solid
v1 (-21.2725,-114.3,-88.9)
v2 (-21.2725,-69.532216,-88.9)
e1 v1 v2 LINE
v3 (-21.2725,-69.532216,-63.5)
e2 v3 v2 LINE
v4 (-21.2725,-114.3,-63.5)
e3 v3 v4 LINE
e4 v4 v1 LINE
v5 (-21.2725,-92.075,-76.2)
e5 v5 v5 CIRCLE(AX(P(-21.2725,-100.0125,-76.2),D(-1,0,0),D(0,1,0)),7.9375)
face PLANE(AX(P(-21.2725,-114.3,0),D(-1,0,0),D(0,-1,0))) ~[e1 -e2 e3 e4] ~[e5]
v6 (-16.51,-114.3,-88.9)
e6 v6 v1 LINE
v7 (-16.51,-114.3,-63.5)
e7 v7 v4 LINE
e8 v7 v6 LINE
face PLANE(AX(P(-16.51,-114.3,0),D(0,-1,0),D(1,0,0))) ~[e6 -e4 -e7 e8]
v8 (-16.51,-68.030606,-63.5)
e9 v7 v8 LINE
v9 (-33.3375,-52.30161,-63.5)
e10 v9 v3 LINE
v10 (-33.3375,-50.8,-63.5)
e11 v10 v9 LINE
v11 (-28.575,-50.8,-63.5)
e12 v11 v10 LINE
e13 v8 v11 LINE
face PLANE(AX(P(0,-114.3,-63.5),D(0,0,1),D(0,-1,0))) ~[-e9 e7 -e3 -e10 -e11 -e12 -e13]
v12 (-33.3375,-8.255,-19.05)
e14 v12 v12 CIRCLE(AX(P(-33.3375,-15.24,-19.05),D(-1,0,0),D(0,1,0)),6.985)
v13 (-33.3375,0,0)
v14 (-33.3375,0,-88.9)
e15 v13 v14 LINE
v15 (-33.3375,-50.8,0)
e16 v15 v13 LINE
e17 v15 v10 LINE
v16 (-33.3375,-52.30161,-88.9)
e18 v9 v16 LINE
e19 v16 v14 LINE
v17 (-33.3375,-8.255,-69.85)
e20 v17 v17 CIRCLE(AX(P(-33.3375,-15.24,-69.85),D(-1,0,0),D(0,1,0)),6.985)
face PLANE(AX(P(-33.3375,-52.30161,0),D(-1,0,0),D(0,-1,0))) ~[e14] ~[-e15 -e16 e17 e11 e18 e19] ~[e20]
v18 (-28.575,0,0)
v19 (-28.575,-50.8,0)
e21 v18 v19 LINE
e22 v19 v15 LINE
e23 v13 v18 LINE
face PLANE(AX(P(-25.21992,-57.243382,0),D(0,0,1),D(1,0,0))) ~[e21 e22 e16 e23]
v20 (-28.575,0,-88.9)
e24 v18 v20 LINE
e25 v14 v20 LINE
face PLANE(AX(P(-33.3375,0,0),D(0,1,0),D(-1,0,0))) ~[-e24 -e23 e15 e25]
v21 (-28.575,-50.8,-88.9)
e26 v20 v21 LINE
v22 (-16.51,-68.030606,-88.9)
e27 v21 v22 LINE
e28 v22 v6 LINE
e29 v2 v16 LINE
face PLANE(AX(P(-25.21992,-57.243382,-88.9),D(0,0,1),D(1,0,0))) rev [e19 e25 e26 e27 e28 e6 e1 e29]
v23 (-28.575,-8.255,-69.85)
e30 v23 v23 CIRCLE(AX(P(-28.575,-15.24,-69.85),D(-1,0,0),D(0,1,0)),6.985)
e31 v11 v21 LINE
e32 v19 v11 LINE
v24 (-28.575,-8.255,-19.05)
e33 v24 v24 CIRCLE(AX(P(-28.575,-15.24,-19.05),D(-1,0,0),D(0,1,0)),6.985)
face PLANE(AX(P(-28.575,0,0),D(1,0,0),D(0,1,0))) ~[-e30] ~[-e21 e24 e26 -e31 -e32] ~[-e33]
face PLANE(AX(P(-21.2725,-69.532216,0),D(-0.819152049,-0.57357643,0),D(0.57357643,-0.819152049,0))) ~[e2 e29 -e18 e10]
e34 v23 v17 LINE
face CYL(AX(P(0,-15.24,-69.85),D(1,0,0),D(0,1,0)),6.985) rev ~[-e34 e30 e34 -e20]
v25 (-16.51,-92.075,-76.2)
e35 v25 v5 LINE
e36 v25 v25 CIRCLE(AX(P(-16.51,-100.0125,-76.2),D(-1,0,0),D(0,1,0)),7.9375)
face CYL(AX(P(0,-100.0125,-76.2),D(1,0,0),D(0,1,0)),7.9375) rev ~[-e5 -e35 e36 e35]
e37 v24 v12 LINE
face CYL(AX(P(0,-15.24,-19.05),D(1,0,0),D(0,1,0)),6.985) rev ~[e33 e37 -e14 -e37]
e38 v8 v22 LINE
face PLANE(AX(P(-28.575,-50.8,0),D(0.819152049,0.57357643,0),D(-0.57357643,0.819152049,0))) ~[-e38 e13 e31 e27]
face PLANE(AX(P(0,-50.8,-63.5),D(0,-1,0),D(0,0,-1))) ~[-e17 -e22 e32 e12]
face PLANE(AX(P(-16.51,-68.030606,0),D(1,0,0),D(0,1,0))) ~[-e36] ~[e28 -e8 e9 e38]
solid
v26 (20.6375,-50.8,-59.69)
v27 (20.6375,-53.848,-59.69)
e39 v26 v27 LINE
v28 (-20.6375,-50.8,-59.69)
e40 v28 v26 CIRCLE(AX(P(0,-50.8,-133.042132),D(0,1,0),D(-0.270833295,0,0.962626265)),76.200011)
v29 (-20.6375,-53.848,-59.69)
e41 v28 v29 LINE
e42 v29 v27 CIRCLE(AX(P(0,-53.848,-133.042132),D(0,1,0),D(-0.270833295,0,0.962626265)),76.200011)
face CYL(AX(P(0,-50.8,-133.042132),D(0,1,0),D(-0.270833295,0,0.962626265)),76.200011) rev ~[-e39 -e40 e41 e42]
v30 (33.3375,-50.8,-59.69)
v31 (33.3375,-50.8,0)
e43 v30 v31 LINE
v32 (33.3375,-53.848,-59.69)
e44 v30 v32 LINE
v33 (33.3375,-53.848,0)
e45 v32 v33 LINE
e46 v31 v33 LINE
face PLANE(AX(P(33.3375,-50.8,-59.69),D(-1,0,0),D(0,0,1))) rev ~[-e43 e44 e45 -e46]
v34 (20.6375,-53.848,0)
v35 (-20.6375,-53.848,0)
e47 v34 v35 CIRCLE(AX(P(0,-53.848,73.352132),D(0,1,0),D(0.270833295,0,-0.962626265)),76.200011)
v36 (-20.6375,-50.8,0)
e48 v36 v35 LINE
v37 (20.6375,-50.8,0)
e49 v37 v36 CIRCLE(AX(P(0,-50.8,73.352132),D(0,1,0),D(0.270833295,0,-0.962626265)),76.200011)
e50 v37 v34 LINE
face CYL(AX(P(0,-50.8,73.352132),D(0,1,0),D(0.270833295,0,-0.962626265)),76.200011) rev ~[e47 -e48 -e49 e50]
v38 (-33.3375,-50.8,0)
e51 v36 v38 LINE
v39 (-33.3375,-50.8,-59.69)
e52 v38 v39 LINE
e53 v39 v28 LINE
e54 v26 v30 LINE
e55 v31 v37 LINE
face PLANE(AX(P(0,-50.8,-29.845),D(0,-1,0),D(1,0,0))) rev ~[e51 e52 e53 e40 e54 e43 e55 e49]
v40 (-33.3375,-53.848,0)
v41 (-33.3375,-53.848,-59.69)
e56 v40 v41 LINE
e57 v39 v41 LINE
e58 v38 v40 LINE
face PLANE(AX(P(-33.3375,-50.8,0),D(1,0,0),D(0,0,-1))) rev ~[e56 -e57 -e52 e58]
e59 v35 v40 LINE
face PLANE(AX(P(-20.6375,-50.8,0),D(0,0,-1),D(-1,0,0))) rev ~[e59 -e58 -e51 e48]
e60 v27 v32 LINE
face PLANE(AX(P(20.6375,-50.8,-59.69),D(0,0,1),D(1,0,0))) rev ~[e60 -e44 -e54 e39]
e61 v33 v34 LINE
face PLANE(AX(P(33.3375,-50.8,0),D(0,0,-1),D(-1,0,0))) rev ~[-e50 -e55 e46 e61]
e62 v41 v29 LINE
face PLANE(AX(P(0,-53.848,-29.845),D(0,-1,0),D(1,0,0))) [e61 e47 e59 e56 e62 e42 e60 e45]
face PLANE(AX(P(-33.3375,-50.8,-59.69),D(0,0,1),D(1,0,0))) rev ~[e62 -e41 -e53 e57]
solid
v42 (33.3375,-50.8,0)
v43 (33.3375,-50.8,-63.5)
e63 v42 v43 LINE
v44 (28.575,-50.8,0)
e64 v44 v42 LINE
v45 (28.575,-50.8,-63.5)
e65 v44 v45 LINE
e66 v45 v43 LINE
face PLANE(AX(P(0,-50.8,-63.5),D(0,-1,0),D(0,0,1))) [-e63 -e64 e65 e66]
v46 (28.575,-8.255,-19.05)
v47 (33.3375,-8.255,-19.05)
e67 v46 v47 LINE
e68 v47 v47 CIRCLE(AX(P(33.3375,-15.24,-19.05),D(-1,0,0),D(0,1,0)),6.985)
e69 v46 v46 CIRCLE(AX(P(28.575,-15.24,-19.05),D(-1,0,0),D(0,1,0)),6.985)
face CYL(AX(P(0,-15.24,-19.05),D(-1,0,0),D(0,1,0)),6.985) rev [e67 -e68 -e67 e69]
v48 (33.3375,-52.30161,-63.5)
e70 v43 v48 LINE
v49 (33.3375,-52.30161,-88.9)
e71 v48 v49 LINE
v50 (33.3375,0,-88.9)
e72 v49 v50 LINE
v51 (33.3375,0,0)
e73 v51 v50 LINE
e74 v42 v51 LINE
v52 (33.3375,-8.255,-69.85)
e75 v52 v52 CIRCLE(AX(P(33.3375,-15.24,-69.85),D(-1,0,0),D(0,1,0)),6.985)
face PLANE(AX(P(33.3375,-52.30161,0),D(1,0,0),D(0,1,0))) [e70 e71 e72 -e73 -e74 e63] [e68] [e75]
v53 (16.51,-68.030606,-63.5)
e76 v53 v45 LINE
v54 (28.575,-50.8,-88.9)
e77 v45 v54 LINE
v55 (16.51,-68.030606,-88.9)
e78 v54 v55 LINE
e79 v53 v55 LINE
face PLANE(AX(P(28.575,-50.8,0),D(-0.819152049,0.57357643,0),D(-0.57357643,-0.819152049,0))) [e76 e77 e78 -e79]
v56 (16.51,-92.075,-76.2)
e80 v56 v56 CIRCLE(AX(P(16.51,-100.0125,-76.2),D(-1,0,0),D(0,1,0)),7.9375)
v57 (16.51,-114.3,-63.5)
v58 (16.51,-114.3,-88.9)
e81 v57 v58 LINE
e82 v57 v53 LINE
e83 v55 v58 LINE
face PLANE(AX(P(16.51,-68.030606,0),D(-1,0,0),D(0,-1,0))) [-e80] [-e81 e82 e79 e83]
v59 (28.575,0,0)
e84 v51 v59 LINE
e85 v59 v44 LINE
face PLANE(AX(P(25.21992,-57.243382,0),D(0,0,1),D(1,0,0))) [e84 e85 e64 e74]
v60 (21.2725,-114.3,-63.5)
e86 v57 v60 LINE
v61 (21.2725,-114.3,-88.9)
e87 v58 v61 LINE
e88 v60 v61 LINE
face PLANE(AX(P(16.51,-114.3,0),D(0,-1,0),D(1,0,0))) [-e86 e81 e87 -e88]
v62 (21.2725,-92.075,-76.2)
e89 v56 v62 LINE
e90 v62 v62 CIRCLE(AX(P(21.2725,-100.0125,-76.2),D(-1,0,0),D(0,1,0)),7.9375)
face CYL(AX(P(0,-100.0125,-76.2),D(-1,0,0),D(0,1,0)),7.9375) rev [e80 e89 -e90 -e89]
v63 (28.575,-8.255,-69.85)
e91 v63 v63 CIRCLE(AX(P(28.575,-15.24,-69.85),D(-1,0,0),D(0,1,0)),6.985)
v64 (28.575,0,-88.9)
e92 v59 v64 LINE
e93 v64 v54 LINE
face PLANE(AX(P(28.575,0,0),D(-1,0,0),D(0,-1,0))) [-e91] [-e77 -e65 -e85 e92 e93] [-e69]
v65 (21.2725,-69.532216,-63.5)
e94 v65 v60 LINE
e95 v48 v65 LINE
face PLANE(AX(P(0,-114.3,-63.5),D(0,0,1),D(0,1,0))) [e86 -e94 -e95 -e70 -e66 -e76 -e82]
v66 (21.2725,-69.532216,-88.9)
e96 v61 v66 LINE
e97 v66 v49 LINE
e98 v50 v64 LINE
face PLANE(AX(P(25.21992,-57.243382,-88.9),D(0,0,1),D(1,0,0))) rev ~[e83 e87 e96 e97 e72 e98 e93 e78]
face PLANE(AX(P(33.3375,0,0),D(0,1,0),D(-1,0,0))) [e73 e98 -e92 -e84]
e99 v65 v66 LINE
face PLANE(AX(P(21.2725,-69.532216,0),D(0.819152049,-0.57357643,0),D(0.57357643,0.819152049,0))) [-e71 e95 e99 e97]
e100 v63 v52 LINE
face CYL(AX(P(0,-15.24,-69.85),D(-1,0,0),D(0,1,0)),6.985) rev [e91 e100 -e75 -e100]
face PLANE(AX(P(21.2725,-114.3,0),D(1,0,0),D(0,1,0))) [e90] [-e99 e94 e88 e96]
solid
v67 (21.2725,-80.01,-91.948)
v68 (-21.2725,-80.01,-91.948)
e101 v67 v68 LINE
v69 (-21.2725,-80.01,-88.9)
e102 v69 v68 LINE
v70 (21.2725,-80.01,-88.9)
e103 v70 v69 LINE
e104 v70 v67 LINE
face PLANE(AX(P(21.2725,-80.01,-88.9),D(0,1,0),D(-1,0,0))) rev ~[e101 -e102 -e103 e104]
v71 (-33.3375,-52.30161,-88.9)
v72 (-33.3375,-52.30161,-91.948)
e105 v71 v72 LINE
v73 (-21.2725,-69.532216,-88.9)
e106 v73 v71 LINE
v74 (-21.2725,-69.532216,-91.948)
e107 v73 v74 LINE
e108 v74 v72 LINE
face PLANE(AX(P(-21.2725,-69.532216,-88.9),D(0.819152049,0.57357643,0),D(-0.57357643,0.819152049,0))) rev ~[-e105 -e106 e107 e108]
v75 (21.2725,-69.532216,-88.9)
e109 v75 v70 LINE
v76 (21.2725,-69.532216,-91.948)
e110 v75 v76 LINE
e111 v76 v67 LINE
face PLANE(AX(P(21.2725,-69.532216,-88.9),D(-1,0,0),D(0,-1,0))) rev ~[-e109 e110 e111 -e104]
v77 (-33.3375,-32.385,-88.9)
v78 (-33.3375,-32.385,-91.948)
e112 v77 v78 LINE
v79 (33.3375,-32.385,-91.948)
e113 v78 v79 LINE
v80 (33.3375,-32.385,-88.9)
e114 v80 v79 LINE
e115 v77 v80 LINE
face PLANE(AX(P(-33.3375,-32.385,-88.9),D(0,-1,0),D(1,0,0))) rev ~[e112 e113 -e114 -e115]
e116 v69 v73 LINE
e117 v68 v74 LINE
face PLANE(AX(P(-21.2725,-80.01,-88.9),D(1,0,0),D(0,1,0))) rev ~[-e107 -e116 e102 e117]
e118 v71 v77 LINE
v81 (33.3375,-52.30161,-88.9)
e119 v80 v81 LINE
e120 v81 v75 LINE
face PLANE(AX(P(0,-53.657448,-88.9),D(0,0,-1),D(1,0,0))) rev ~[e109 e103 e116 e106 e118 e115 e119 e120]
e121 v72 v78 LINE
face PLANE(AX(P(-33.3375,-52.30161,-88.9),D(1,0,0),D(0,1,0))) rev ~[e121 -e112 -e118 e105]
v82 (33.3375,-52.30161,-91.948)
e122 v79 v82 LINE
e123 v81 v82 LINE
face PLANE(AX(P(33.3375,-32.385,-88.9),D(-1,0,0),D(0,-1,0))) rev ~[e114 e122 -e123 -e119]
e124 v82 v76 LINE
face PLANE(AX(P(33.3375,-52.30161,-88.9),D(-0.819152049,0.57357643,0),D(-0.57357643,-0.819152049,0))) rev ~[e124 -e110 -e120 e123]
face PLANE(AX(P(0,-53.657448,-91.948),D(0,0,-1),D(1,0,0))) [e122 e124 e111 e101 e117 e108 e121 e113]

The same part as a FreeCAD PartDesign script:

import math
import FreeCAD as App
import Part
import Sketcher

V = App.Vector
Q = App.Units.Quantity


def add_polygon(sketch, points):
    """Adds a closed chain of lines whose ends are joined by coincident constraints."""
    first, n = sketch.GeometryCount, len(points)
    for a, b in zip(points, points[1:] + points[:1]):
        sketch.addGeometry(Part.LineSegment(App.Vector(*a, 0), App.Vector(*b, 0)), False)
    for i in range(n):
        sketch.addConstraint(Sketcher.Constraint("Coincident", first + i, 2, first + (i + 1) % n, 1))

doc = App.newDocument("Part")
params = doc.addObject("Spreadsheet::Sheet", "Params")
for row, (alias, value) in enumerate([
    ("sketch1_height", "2 in"),
    ("sketch1_width", "0.1875 in"),
    ("pad1_length", "3.5 in"),
    ("sketch2_diameter", "0.55 in"),
    ("sketch2_diameter2", "0.625 in"),
    ("sketch2_width", "2.5 in"),
    ("sketch3_width", "0.5 in"),
    ("sketch3_height", "2.35 in"),
    ("pad2_length", "0.12 in"),
    ("sketch4_width", "2.625 in"),
    ("sketch4_width2", "1.675 in"),
    ("pad3_length", "0.12 in"),
], start=1):
    params.set(f"A{row}", alias)
    params.set(f"B{row}", "=" + value)
    params.setAlias(f"B{row}", alias)

body = doc.addObject("PartDesign::Body", "Body")

sketch1 = doc.addObject("Sketcher::SketchObject", "Sketch")
body.addObject(sketch1)
sketch1.AttachmentSupport = (doc.XY_Plane, [""])
sketch1.MapMode = "FlatFace"
add_polygon(sketch1, [(33.3, 0), (28.6, 0), (28.6, -50.8), (16.5, -68), (16.5, -114.3), (21.3, -114.3), (21.3, -69.5), (33.3, -52.3)])
sketch1.addConstraint(Sketcher.Constraint("Horizontal", 0))
sketch1.addConstraint(Sketcher.Constraint("Vertical", 1))
sketch1.addConstraint(Sketcher.Constraint("Vertical", 3))
sketch1.addConstraint(Sketcher.Constraint("Horizontal", 4))
sketch1.addConstraint(Sketcher.Constraint("Vertical", 5))
sketch1.addConstraint(Sketcher.Constraint("Vertical", 7))
sketch1.addConstraint(Sketcher.Constraint("PointOnObject", 0, 2, -1))
sketch1.addConstraint(Sketcher.Constraint("Parallel", 2, 6))
sketch1.addConstraint(Sketcher.Constraint("Equal", 0, 4))
sketch1.addConstraint(Sketcher.Constraint("DistanceY", 1, 2, 1, 1, Q("2 in")))
sketch1.addConstraint(Sketcher.Constraint("Angle", 2, Q("-125 deg")))
sketch1.addConstraint(Sketcher.Constraint("DistanceY", 3, 2, -1, 1, Q("4.5 in")))
sketch1.addConstraint(Sketcher.Constraint("DistanceX", 0, 2, 0, 1, Q("0.1875 in")))
sketch1.addConstraint(Sketcher.Constraint("DistanceX", -1, 1, 2, 2, Q("0.65 in")))
sketch1.addConstraint(Sketcher.Constraint("DistanceX", -1, 1, 0, 2, Q("1.125 in")))
sketch1.addConstraint(Sketcher.Constraint("DistanceY", 7, 1, 7, 2, 52.30161))
sketch1.setExpression("Constraints[17]", "Params.sketch1_height")
sketch1.setExpression("Constraints[20]", "Params.sketch1_width")
pad1 = doc.addObject("PartDesign::Pad", "Pad")
body.addObject(pad1)
pad1.Profile = sketch1
pad1.setExpression("Length", "Params.pad1_length")
pad1.Reversed = True

sketch2 = doc.addObject("Sketcher::SketchObject", "Sketch001")
body.addObject(sketch2)
sketch2.AttachmentSupport = (doc.YZ_Plane, [""])
sketch2.MapMode = "FlatFace"
add_polygon(sketch2, [(-114, 0), (-114, -64), (-51, -64), (-51, 0)])
sketch2.addGeometry(Part.Circle(V(-15, -19, 0), V(0, 0, 1), 7), False)
sketch2.addGeometry(Part.Circle(V(-15, -70, 0), V(0, 0, 1), 7), False)
sketch2.addGeometry(Part.Circle(V(-100, -76, 0), V(0, 0, 1), 8), False)
sketch2.addConstraint(Sketcher.Constraint("Vertical", 0))
sketch2.addConstraint(Sketcher.Constraint("Horizontal", 1))
sketch2.addConstraint(Sketcher.Constraint("Vertical", 2))
sketch2.addConstraint(Sketcher.Constraint("Horizontal", 3))
sketch2.addConstraint(Sketcher.Constraint("Equal", 4, 5))
sketch2.addConstraint(Sketcher.Constraint("PointOnObject", 2, 2, -1))
sketch2.addConstraint(Sketcher.Constraint("Vertical", 4, 3, 5, 3))
sketch2.addConstraint(Sketcher.Constraint("Equal", 3, 0))
sketch2.addConstraint(Sketcher.Constraint("Diameter", 4, Q("0.55 in")))
sketch2.addConstraint(Sketcher.Constraint("Diameter", 6, Q("0.625 in")))
sketch2.addConstraint(Sketcher.Constraint("DistanceX", 1, 1, 1, 2, Q("2.5 in")))
sketch2.addConstraint(Sketcher.Constraint("DistanceY", 6, 3, -1, 1, Q("3 in")))
sketch2.addConstraint(Sketcher.Constraint("DistanceX", 1, 2, -1, 1, Q("2 in")))
sketch2.addConstraint(Sketcher.Constraint("DistanceY", 5, 3, 4, 3, Q("2 in")))
sketch2.addConstraint(Sketcher.Constraint("DistanceX", 4, 3, -1, 1, Q("0.6 in")))
sketch2.addConstraint(Sketcher.Constraint("DistanceY", 4, 3, -1, 1, Q("0.75 in")))
sketch2.addConstraint(Sketcher.Constraint("DistanceX", 6, 3, -1, 1, Q("3.9375 in")))
sketch2.setExpression("Constraints[12]", "Params.sketch2_diameter")
sketch2.setExpression("Constraints[13]", "Params.sketch2_diameter2")
sketch2.setExpression("Constraints[14]", "Params.sketch2_width")
pocket1 = doc.addObject("PartDesign::Pocket", "Pocket")
body.addObject(pocket1)
pocket1.Profile = sketch2
pocket1.Type = "ThroughAll"
pocket1.Reversed = True
body2 = doc.addObject("PartDesign::Body", "Body001")
doc.recompute()

mirroring = doc.addObject("Part::Mirroring", "Mirroring")
mirroring.Source = body
mirroring.Base = V(0, 0, 0)
mirroring.Normal = V(1, 0, 0)
body2.BaseFeature = mirroring
doc.recompute()
body3 = doc.addObject("PartDesign::Body", "Body002")

sketch3 = doc.addObject("Sketcher::SketchObject", "Sketch002")
body3.addObject(sketch3)
sketch3.AttachmentSupport = (doc.getObject("XZ_Plane002"), [""])
sketch3.MapMode = "FlatFace"
sketch3.AttachmentOffset = App.Placement(V(0, 0, 2 * 25.4), App.Rotation())
sketch3.addGeometry(Part.LineSegment(V(-21, 0, 0), V(-33, 0, 0)), False)
sketch3.addGeometry(Part.LineSegment(V(-33, 0, 0), V(-33, -60, 0)), False)
sketch3.addGeometry(Part.LineSegment(V(-33, -60, 0), V(-21, -60, 0)), False)
sketch3.addGeometry(Part.ArcOfCircle(Part.Circle(V(0, -133, 0), V(0, 0, 1), 76), math.radians(74), math.radians(106)), False)
sketch3.addGeometry(Part.LineSegment(V(21, -60, 0), V(33, -60, 0)), False)
sketch3.addGeometry(Part.LineSegment(V(33, -60, 0), V(33, 0, 0)), False)
sketch3.addGeometry(Part.LineSegment(V(33, 0, 0), V(21, 0, 0)), False)
sketch3.addGeometry(Part.ArcOfCircle(Part.Circle(V(0, 73, 0), V(0, 0, 1), 76), math.radians(-106), math.radians(-74)), False)
sketch3.addConstraint(Sketcher.Constraint("Coincident", 0, 2, 1, 1))
sketch3.addConstraint(Sketcher.Constraint("Coincident", 1, 2, 2, 1))
sketch3.addConstraint(Sketcher.Constraint("Coincident", 2, 2, 3, 2))
sketch3.addConstraint(Sketcher.Constraint("Coincident", 3, 1, 4, 1))
sketch3.addConstraint(Sketcher.Constraint("Coincident", 4, 2, 5, 1))
sketch3.addConstraint(Sketcher.Constraint("Coincident", 5, 2, 6, 1))
sketch3.addConstraint(Sketcher.Constraint("Coincident", 6, 2, 7, 2))
sketch3.addConstraint(Sketcher.Constraint("Coincident", 7, 1, 0, 1))
sketch3.addConstraint(Sketcher.Constraint("Horizontal", 0))
sketch3.addConstraint(Sketcher.Constraint("Vertical", 1))
sketch3.addConstraint(Sketcher.Constraint("Horizontal", 2))
sketch3.addConstraint(Sketcher.Constraint("Horizontal", 4))
sketch3.addConstraint(Sketcher.Constraint("Vertical", 5))
sketch3.addConstraint(Sketcher.Constraint("Horizontal", 6))
sketch3.addConstraint(Sketcher.Constraint("Equal", 3, 7))
sketch3.addConstraint(Sketcher.Constraint("Symmetric", 0, 2, 5, 2, -1, 1))
sketch3.addConstraint(Sketcher.Constraint("Symmetric", 2, 2, 3, 1, -2))
sketch3.addConstraint(Sketcher.Constraint("Symmetric", 6, 2, 7, 1, -2))
sketch3.addConstraint(Sketcher.Constraint("Vertical", 3, 1, 6, 2))
sketch3.addConstraint(Sketcher.Constraint("DistanceX", 0, 2, 0, 1, Q("0.5 in")))
sketch3.addConstraint(Sketcher.Constraint("DistanceY", 1, 2, 1, 1, Q("2.35 in")))
sketch3.addConstraint(Sketcher.Constraint("DistanceX", 0, 2, -1, 1, Q("1.3125 in")))
sketch3.addConstraint(Sketcher.Constraint("Radius", 3, 76.200011))
sketch3.setExpression("Constraints[19]", "Params.sketch3_width")
sketch3.setExpression("Constraints[20]", "Params.sketch3_height")
pad2 = doc.addObject("PartDesign::Pad", "Pad001")
body3.addObject(pad2)
pad2.Profile = sketch3
pad2.setExpression("Length", "Params.pad2_length")
body4 = doc.addObject("PartDesign::Body", "Body003")

sketch4 = doc.addObject("Sketcher::SketchObject", "Sketch003")
body4.addObject(sketch4)
sketch4.AttachmentSupport = (doc.getObject("XY_Plane003"), [""])
sketch4.MapMode = "FlatFace"
sketch4.AttachmentOffset = App.Placement(V(0, 0, -3.5 * 25.4), App.Rotation())
add_polygon(sketch4, [(-33, -52), (-33, -32), (33, -32), (33, -52), (21, -70), (21, -80), (-21, -80), (-21, -70)])
sketch4.addConstraint(Sketcher.Constraint("Vertical", 0))
sketch4.addConstraint(Sketcher.Constraint("Horizontal", 1))
sketch4.addConstraint(Sketcher.Constraint("Vertical", 2))
sketch4.addConstraint(Sketcher.Constraint("Vertical", 4))
sketch4.addConstraint(Sketcher.Constraint("Horizontal", 5))
sketch4.addConstraint(Sketcher.Constraint("Vertical", 6))
sketch4.addConstraint(Sketcher.Constraint("Symmetric", 3, 2, 6, 2, -2))
sketch4.addConstraint(Sketcher.Constraint("Symmetric", 2, 2, 7, 2, -2))
sketch4.addConstraint(Sketcher.Constraint("Angle", 3, Q("-125 deg")))
sketch4.addConstraint(Sketcher.Constraint("DistanceX", 1, 1, 1, 2, Q("2.625 in")))
sketch4.addConstraint(Sketcher.Constraint("DistanceX", 5, 2, 5, 1, Q("1.675 in")))
sketch4.addConstraint(Sketcher.Constraint("DistanceY", 4, 2, -1, 1, Q("3.15 in")))
sketch4.addConstraint(Sketcher.Constraint("DistanceY", 0, 2, -1, 1, Q("1.275 in")))
sketch4.addConstraint(Sketcher.Constraint("DistanceY", 0, 1, 0, 2, 19.91661))
sketch4.setExpression("Constraints[17]", "Params.sketch4_width")
sketch4.setExpression("Constraints[18]", "Params.sketch4_width2")
pad3 = doc.addObject("PartDesign::Pad", "Pad002")
body4.addObject(pad3)
pad3.Profile = sketch4
pad3.setExpression("Length", "Params.pad3_length")
pad3.Reversed = True
mirroring.Visibility = False

doc.recompute()
